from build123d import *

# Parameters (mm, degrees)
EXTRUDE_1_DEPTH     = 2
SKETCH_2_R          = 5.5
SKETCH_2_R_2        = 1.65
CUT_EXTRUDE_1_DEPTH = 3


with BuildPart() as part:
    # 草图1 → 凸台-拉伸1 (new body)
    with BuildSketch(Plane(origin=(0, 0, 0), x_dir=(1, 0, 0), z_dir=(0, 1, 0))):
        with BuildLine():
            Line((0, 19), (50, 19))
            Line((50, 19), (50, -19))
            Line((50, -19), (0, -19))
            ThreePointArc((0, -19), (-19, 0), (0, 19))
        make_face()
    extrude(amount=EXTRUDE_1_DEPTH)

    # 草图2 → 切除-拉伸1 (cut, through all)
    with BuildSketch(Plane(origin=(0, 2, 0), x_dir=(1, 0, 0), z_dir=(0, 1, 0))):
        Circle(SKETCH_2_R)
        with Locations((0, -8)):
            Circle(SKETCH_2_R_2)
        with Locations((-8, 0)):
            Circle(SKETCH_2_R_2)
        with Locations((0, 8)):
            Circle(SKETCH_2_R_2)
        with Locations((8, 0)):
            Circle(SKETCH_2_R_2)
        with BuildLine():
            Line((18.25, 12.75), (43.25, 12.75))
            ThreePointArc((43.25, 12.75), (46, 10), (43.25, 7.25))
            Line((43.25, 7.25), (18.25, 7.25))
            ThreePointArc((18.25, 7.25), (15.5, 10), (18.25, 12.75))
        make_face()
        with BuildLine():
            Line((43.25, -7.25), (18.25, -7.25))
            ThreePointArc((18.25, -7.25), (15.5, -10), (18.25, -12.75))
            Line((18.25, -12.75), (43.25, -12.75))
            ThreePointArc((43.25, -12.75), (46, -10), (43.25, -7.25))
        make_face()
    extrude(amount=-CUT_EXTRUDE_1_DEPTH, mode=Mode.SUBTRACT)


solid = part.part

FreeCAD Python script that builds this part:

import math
import FreeCAD as App
import Part
import Sketcher
from FreeCAD import Vector

doc = App.newDocument("Part")
body = doc.addObject("PartDesign::Body", "Body")

sketch1 = body.newObject("Sketcher::SketchObject", "Sketch")
sketch1.AttachmentSupport = (doc.getObject("XZ_Plane"), [""])
sketch1.MapMode = "FlatFace"
sketch1.addGeometry([
    Part.LineSegment(Vector(50, -19, 0), Vector(0, -19, 0)),
    Part.ArcOfCircle(Part.Circle(Vector(0, 0, 0), Vector(0, 0, 1), 19), math.radians(90), math.radians(270)),
    Part.LineSegment(Vector(0, 19, 0), Vector(50, 19, 0)),
    Part.LineSegment(Vector(50, 19, 0), Vector(50, -19, 0)),
], False)
sketch1.addConstraint([
    Sketcher.Constraint("Tangent", 0, 2, 1, 2),
    Sketcher.Constraint("Tangent", 1, 1, 2, 1),
    Sketcher.Constraint("Coincident", 2, 2, 3, 1),
    Sketcher.Constraint("Coincident", 3, 2, 0, 1),
    Sketcher.Constraint("Horizontal", 0),
    Sketcher.Constraint("Horizontal", 2),
    Sketcher.Constraint("Vertical", 3),
    Sketcher.Constraint("Coincident", 1, 3, -1, 1),
    Sketcher.Constraint("Radius", 1, 19.0),
    Sketcher.Constraint("DistanceX", 0, 2, 0, 1, 50.0),
])
pad1 = body.newObject("PartDesign::Pad", "Pad")
pad1.Profile = sketch1
pad1.Length = 2
pad1.Reversed = True

sketch2 = body.newObject("Sketcher::SketchObject", "Sketch001")
sketch2.AttachmentSupport = (doc.getObject("XZ_Plane"), [""])
sketch2.MapMode = "FlatFace"
sketch2.AttachmentOffset = App.Placement(Vector(0, 0, -2), App.Rotation())
sketch2.addGeometry([
    Part.Circle(Vector(0, 0, 0), Vector(0, 0, 1), 5.5),
    Part.Circle(Vector(0, 8, 0), Vector(0, 0, 1), 1.6),
    Part.Circle(Vector(-8, 0, 0), Vector(0, 0, 1), 1.6),
    Part.Circle(Vector(0, -8, 0), Vector(0, 0, 1), 1.6),
    Part.Circle(Vector(8, 0, 0), Vector(0, 0, 1), 1.6),
    Part.LineSegment(Vector(43.2, -12.8, 0), Vector(18.2, -12.8, 0)),
    Part.ArcOfCircle(Part.Circle(Vector(18.2, -10, 0), Vector(0, 0, 1), 2.8), math.radians(90), math.radians(270)),
    Part.LineSegment(Vector(18.2, -7.2, 0), Vector(43.2, -7.2, 0)),
    Part.ArcOfCircle(Part.Circle(Vector(43.2, -10, 0), Vector(0, 0, 1), 2.8), math.radians(-90), math.radians(90)),
    Part.LineSegment(Vector(43.2, 7.2, 0), Vector(18.2, 7.2, 0)),
    Part.ArcOfCircle(Part.Circle(Vector(18.2, 10, 0), Vector(0, 0, 1), 2.8), math.radians(90), math.radians(270)),
    Part.LineSegment(Vector(18.2, 12.8, 0), Vector(43.2, 12.8, 0)),
    Part.ArcOfCircle(Part.Circle(Vector(43.2, 10, 0), Vector(0, 0, 1), 2.8), math.radians(-90), math.radians(90)),
], False)
sketch2.addConstraint([
    Sketcher.Constraint("Tangent", 5, 2, 6, 2),
    Sketcher.Constraint("Tangent", 6, 1, 7, 1),
    Sketcher.Constraint("Tangent", 7, 2, 8, 2),
    Sketcher.Constraint("Tangent", 8, 1, 5, 1),
    Sketcher.Constraint("Tangent", 9, 2, 10, 2),
    Sketcher.Constraint("Tangent", 10, 1, 11, 1),
    Sketcher.Constraint("Tangent", 11, 2, 12, 2),
    Sketcher.Constraint("Tangent", 12, 1, 9, 1),
    Sketcher.Constraint("Horizontal", 5),
    Sketcher.Constraint("Horizontal", 7),
    Sketcher.Constraint("Horizontal", 9),
    Sketcher.Constraint("Horizontal", 11),
    Sketcher.Constraint("Coincident", 0, 3, -1, 1),
    Sketcher.Constraint("Equal", 1, 2),
    Sketcher.Constraint("Equal", 2, 3),
    Sketcher.Constraint("Equal", 3, 4),
    Sketcher.Constraint("Equal", 8, 10),
    Sketcher.Constraint("Symmetric", 1, 3, 3, 3, -1, 1),
    Sketcher.Constraint("Symmetric", 2, 3, 4, 3, -1, 1),
    Sketcher.Constraint("Symmetric", 6, 3, 10, 3, -1),
    Sketcher.Constraint("PointOnObject", 1, 3, -2),
    Sketcher.Constraint("PointOnObject", 2, 3, -1),
    Sketcher.Constraint("Vertical", 8, 3, 12, 3),
    Sketcher.Constraint("Diameter", 0, 11.0),
    Sketcher.Constraint("Diameter", 1, 3.3),
    Sketcher.Constraint("DistanceX", 5, 2, 5, 1, 25.0),
    Sketcher.Constraint("Radius", 6, 2.75),
    Sketcher.Constraint("DistanceY", -1, 1, 1, 3, 8.0),
    Sketcher.Constraint("DistanceX", 2, 3, -1, 1, 8.0),
    Sketcher.Constraint("DistanceY", 6, 3, -1, 1, 10.0),
    Sketcher.Constraint("DistanceX", -1, 1, 6, 3, 18.25),
])
pocket1 = body.newObject("PartDesign::Pocket", "Pocket")
pocket1.Profile = sketch2
pocket1.Type = "ThroughAll"
pocket1.Reversed = True

doc.recompute()
